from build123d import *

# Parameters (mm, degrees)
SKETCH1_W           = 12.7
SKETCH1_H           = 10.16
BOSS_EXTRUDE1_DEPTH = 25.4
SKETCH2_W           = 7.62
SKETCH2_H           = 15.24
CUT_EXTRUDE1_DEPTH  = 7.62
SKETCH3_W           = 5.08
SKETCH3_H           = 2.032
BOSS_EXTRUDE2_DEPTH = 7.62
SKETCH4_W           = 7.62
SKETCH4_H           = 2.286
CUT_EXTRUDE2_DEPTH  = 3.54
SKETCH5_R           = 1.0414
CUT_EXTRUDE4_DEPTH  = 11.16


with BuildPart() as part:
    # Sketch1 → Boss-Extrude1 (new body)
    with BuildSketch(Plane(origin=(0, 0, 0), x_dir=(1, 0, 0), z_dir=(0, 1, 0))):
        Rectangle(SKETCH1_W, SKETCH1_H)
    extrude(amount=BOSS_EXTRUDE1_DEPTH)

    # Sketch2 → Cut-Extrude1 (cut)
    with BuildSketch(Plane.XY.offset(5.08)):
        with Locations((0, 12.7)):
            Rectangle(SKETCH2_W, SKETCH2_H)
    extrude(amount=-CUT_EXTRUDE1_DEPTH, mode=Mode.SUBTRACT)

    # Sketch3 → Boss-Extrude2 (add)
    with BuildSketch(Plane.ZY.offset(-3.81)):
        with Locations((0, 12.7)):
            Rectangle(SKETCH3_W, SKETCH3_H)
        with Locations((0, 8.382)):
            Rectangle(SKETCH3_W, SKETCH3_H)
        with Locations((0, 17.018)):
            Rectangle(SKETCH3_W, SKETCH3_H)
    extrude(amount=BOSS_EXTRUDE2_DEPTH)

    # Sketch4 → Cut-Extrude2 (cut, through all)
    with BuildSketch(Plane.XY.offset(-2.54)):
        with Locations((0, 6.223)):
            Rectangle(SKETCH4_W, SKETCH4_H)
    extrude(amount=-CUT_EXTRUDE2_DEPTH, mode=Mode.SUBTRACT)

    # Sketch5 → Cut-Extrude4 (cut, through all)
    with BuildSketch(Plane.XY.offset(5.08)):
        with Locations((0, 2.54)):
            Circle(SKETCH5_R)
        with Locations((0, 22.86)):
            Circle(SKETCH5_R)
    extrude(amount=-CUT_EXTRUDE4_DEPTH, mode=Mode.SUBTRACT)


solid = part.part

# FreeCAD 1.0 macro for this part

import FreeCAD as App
import Part
import Sketcher
from FreeCAD import Vector
Q = App.Units.Quantity


def add_polygon(sketch, points):
    """Adds a closed chain of lines whose ends are joined by coincident constraints."""
    first, n = sketch.GeometryCount, len(points)
    for a, b in zip(points, points[1:] + points[:1]):
        sketch.addGeometry(Part.LineSegment(App.Vector(*a, 0), App.Vector(*b, 0)), False)
    for i in range(n):
        sketch.addConstraint(Sketcher.Constraint("Coincident", first + i, 2, first + (i + 1) % n, 1))

doc = App.newDocument("Part")
body = doc.addObject("PartDesign::Body", "Body")

# Sketch on XZ plane
sketch1 = body.newObject("Sketcher::SketchObject", "Sketch")
sketch1.AttachmentSupport = (doc.getObject("XZ_Plane"), [""])
sketch1.MapMode = "FlatFace"
add_polygon(sketch1, [(-6, -5), (-6, 5), (6, 5), (6, -5)])  # lines 0-3
sketch1.addConstraint(Sketcher.Constraint("Vertical", 0))
sketch1.addConstraint(Sketcher.Constraint("Horizontal", 1))
sketch1.addConstraint(Sketcher.Constraint("Vertical", 2))
sketch1.addConstraint(Sketcher.Constraint("Horizontal", 3))
sketch1.addConstraint(Sketcher.Constraint("Symmetric", 0, 2, 2, 2, -1, 1))
sketch1.addConstraint(Sketcher.Constraint("DistanceX", 1, 1, 1, 2, Q("0.5 in")))
sketch1.addConstraint(Sketcher.Constraint("DistanceY", 0, 1, 0, 2, Q("0.4 in")))
pad1 = body.newObject("PartDesign::Pad", "Pad")
pad1.Profile = sketch1
pad1.Length = Q("1 in")
pad1.Reversed = True

# Sketch on XY plane
sketch2 = body.newObject("Sketcher::SketchObject", "Sketch001")
sketch2.AttachmentSupport = (doc.getObject("XY_Plane"), [""])
sketch2.MapMode = "FlatFace"
sketch2.AttachmentOffset = App.Placement(Vector(0, 0, 0.2 * 25.4), App.Rotation())
add_polygon(sketch2, [(-4, 20), (-4, 5), (4, 5), (4, 20)])  # lines 0-3
sketch2.addConstraint(Sketcher.Constraint("Vertical", 0))
sketch2.addConstraint(Sketcher.Constraint("Horizontal", 1))
sketch2.addConstraint(Sketcher.Constraint("Vertical", 2))
sketch2.addConstraint(Sketcher.Constraint("Horizontal", 3))
sketch2.addConstraint(Sketcher.Constraint("DistanceX", 1, 1, 1, 2, Q("0.3 in")))
sketch2.addConstraint(Sketcher.Constraint("DistanceY", 0, 2, 0, 1, Q("0.6 in")))
sketch2.addConstraint(Sketcher.Constraint("DistanceY", -1, 1, 0, 2, Q("0.2 in")))
sketch2.addConstraint(Sketcher.Constraint("DistanceX", 0, 2, -1, 1, Q("0.15 in")))
pocket1 = body.newObject("PartDesign::Pocket", "Pocket")
pocket1.Profile = sketch2
pocket1.Length = Q("0.3 in")

# Sketch on YZ plane
sketch3 = body.newObject("Sketcher::SketchObject", "Sketch002")
sketch3.AttachmentSupport = (doc.getObject("YZ_Plane"), [""])
sketch3.MapMode = "FlatFace"
sketch3.AttachmentOffset = App.Placement(Vector(0, 0, 0.15 * 25.4), App.Rotation())
add_polygon(sketch3, [(13.7, -2.5), (11.7, -2.5), (11.7, 2.5), (13.7, 2.5)])  # lines 0-3
add_polygon(sketch3, [(9.4, -2.5), (7.4, -2.5), (7.4, 2.5), (9.4, 2.5)])  # lines 4-7
add_polygon(sketch3, [(18, -2.5), (16, -2.5), (16, 2.5), (18, 2.5)])  # lines 8-11
sketch3.addConstraint(Sketcher.Constraint("Horizontal", 0))
sketch3.addConstraint(Sketcher.Constraint("Vertical", 1))
sketch3.addConstraint(Sketcher.Constraint("Horizontal", 2))
sketch3.addConstraint(Sketcher.Constraint("Vertical", 3))
sketch3.addConstraint(Sketcher.Constraint("Horizontal", 4))
sketch3.addConstraint(Sketcher.Constraint("Vertical", 5))
sketch3.addConstraint(Sketcher.Constraint("Horizontal", 6))
sketch3.addConstraint(Sketcher.Constraint("Vertical", 7))
sketch3.addConstraint(Sketcher.Constraint("Horizontal", 8))
sketch3.addConstraint(Sketcher.Constraint("Vertical", 9))
sketch3.addConstraint(Sketcher.Constraint("Horizontal", 10))
sketch3.addConstraint(Sketcher.Constraint("Vertical", 11))
sketch3.addConstraint(Sketcher.Constraint("Horizontal", 3, 2, 4, 2))
sketch3.addConstraint(Sketcher.Constraint("Horizontal", 2, 2, 5, 2))
sketch3.addConstraint(Sketcher.Constraint("Horizontal", 7, 2, 8, 2))
sketch3.addConstraint(Sketcher.Constraint("Horizontal", 6, 2, 9, 2))
sketch3.addConstraint(Sketcher.Constraint("Equal", 2, 4))
sketch3.addConstraint(Sketcher.Constraint("Equal", 6, 8))
sketch3.addConstraint(Sketcher.Constraint("DistanceY", 1, 1, 1, 2, Q("0.2 in")))
sketch3.addConstraint(Sketcher.Constraint("DistanceX", 0, 2, 0, 1, Q("0.08 in")))
sketch3.addConstraint(Sketcher.Constraint("DistanceY", 0, 2, -1, 1, Q("0.1 in")))
sketch3.addConstraint(Sketcher.Constraint("DistanceX", -1, 1, 0, 2, Q("0.46 in")))
sketch3.addConstraint(Sketcher.Constraint("DistanceX", -1, 1, 4, 2, Q("0.29 in")))
sketch3.addConstraint(Sketcher.Constraint("DistanceX", -1, 1, 8, 2, Q("0.63 in")))
pad2 = body.newObject("PartDesign::Pad", "Pad001")
pad2.Profile = sketch3
pad2.Length = Q("0.3 in")
pad2.Reversed = True

# Sketch on XY plane
sketch4 = body.newObject("Sketcher::SketchObject", "Sketch003")
sketch4.AttachmentSupport = (doc.getObject("XY_Plane"), [""])
sketch4.MapMode = "FlatFace"
sketch4.AttachmentOffset = App.Placement(Vector(0, 0, -0.1 * 25.4), App.Rotation())
add_polygon(sketch4, [(-3.8, 7.4), (-3.8, 5.1), (3.8, 5.1), (3.8, 7.4)])  # lines 0-3
sketch4.addConstraint(Sketcher.Constraint("Vertical", 0))
sketch4.addConstraint(Sketcher.Constraint("Horizontal", 1))
sketch4.addConstraint(Sketcher.Constraint("Vertical", 2))
sketch4.addConstraint(Sketcher.Constraint("Horizontal", 3))
sketch4.addConstraint(Sketcher.Constraint("DistanceX", 1, 1, 1, 2, Q("0.3 in")))
sketch4.addConstraint(Sketcher.Constraint("DistanceY", 0, 2, 0, 1, Q("0.09 in")))
sketch4.addConstraint(Sketcher.Constraint("DistanceY", -1, 1, 0, 2, Q("0.2 in")))
sketch4.addConstraint(Sketcher.Constraint("DistanceX", 0, 2, -1, 1, Q("0.15 in")))
pocket2 = body.newObject("PartDesign::Pocket", "Pocket001")
pocket2.Profile = sketch4
pocket2.Type = "ThroughAll"

# Sketch on XY plane
sketch5 = body.newObject("Sketcher::SketchObject", "Sketch004")
sketch5.AttachmentSupport = (doc.getObject("XY_Plane"), [""])
sketch5.MapMode = "FlatFace"
sketch5.AttachmentOffset = App.Placement(Vector(0, 0, 0.2 * 25.4), App.Rotation())
sketch5.addGeometry(Part.Circle(Vector(0, 2.5, 0), Vector(0, 0, 1), 1), False)
sketch5.addGeometry(Part.Circle(Vector(0, 22.9, 0), Vector(0, 0, 1), 1), False)
sketch5.addConstraint(Sketcher.Constraint("Equal", 0, 1))
sketch5.addConstraint(Sketcher.Constraint("PointOnObject", 0, 3, -2))
sketch5.addConstraint(Sketcher.Constraint("PointOnObject", 1, 3, -2))
sketch5.addConstraint(Sketcher.Constraint("Diameter", 0, Q("0.082 in")))
sketch5.addConstraint(Sketcher.Constraint("DistanceY", -1, 1, 0, 3, Q("0.1 in")))
sketch5.addConstraint(Sketcher.Constraint("DistanceY", -1, 1, 1, 3, Q("0.9 in")))
pocket3 = body.newObject("PartDesign::Pocket", "Pocket002")
pocket3.Profile = sketch5
pocket3.Type = "ThroughAll"

doc.recompute()
